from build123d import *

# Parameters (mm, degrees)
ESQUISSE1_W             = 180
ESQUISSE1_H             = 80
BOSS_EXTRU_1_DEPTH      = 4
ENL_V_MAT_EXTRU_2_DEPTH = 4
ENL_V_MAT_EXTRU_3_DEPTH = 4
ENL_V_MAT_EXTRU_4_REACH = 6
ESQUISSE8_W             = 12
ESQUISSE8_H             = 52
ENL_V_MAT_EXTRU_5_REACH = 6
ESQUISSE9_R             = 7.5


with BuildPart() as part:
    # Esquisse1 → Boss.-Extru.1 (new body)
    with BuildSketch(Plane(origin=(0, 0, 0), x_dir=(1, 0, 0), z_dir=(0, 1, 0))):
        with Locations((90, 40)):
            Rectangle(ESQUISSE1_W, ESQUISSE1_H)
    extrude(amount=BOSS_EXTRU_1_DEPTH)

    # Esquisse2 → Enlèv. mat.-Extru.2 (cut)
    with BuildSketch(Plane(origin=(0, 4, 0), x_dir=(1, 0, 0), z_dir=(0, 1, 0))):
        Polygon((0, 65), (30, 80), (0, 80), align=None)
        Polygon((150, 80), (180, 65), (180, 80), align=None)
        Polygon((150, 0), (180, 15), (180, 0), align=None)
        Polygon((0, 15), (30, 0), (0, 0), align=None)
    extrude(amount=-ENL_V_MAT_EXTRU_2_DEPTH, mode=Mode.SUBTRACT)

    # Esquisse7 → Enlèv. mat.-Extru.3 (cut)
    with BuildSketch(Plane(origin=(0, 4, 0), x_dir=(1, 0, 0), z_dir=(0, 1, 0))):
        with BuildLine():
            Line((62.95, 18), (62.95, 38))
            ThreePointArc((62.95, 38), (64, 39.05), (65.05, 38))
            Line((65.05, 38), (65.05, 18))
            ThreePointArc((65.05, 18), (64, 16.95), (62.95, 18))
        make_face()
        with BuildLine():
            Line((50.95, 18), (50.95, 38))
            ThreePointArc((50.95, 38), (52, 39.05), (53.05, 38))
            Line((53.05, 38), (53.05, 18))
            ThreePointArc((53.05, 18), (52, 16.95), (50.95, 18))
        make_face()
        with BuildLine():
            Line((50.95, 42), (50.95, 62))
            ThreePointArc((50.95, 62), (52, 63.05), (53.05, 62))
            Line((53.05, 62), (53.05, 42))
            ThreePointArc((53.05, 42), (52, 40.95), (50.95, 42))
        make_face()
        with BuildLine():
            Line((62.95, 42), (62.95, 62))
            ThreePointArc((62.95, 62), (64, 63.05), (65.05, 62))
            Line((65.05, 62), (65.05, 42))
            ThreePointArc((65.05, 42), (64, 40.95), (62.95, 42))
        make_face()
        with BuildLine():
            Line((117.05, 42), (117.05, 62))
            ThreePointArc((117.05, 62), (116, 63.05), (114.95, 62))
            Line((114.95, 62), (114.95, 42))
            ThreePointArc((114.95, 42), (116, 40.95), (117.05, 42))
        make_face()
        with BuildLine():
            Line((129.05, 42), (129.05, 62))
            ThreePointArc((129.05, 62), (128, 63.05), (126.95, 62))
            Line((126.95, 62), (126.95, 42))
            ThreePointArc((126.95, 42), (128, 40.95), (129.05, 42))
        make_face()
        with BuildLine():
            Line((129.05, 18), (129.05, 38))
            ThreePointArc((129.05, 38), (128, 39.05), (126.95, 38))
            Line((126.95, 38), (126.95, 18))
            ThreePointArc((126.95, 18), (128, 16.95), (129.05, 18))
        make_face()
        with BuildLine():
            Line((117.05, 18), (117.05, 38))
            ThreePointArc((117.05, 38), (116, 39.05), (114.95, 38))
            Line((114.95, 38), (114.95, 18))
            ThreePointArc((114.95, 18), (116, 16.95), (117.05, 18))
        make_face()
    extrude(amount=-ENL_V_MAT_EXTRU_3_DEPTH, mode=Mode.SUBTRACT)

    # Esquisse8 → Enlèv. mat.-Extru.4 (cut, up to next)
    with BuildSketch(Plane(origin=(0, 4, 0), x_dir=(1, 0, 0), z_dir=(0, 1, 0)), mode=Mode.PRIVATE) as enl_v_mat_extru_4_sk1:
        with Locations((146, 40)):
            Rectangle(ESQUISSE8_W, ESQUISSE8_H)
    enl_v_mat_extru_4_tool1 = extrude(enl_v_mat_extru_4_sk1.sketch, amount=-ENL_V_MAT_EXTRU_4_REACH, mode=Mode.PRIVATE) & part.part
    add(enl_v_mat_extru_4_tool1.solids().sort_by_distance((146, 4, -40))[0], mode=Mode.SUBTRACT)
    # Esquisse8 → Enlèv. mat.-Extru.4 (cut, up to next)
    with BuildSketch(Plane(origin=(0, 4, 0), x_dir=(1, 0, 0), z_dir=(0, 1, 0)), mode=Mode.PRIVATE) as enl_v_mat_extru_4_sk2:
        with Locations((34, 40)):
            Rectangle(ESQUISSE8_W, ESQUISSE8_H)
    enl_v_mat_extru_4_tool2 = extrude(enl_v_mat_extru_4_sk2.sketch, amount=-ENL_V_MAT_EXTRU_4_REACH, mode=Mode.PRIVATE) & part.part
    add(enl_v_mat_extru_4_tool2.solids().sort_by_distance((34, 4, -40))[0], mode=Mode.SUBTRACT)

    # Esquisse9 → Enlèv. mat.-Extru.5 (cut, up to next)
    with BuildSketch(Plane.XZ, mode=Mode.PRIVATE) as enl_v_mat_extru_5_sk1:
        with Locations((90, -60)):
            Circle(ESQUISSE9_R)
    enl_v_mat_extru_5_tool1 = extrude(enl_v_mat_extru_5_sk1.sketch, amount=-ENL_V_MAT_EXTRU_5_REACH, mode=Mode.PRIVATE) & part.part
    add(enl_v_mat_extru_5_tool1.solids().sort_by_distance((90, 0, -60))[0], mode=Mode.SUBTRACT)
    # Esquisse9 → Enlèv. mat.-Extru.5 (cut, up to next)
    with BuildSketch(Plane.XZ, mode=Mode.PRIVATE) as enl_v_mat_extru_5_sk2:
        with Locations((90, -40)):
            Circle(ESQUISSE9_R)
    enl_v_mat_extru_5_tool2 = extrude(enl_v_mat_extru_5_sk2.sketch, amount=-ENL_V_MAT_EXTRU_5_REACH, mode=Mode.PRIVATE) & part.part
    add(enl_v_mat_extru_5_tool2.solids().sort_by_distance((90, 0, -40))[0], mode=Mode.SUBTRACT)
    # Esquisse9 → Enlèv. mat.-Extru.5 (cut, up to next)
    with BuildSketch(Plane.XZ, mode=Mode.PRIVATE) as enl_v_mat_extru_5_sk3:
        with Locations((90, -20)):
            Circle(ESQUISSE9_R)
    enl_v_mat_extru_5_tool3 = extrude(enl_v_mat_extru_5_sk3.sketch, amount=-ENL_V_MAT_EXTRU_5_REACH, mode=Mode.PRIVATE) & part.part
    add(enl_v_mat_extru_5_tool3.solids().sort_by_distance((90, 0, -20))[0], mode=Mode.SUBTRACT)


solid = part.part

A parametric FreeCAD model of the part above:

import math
import FreeCAD as App
import Part
import Sketcher
from FreeCAD import Vector
Q = App.Units.Quantity

doc = App.newDocument("Part")
params = doc.addObject("Spreadsheet::Sheet", "Params")
for row, (alias, value) in enumerate([
    ("sketch1_width", "180 mm"),
    ("sketch1_height", "80 mm"),
    ("pad1_length", "4 mm"),
    ("sketch2_width", "30 mm"),
    ("sketch2_height", "15 mm"),
    ("pocket1_length", "4 mm"),
    ("sketch3_height", "20 mm"),
    ("sketch3_radius", "1.05 mm"),
    ("pocket2_length", "4 mm"),
    ("sketch4_width", "12 mm"),
    ("sketch4_height", "52 mm"),
    ("sketch5_width", "12 mm"),
    ("sketch5_height", "52 mm"),
    ("sketch6_diameter", "15 mm"),
    ("sketch7_diameter", "15 mm"),
    ("sketch8_diameter", "15 mm"),
], start=1):
    params.set(f"A{row}", alias)
    params.set(f"B{row}", "=" + value)
    params.setAlias(f"B{row}", alias)

body = doc.addObject("PartDesign::Body", "Body")

sketch1 = body.newObject("Sketcher::SketchObject", "Sketch")
sketch1.AttachmentSupport = (doc.getObject("XZ_Plane"), [""])
sketch1.MapMode = "FlatFace"
sketch1.addGeometry([
    Part.LineSegment(Vector(0, -80, 0), Vector(0, 0, 0)),
    Part.LineSegment(Vector(0, 0, 0), Vector(180, 0, 0)),
    Part.LineSegment(Vector(180, 0, 0), Vector(180, -80, 0)),
    Part.LineSegment(Vector(180, -80, 0), Vector(0, -80, 0)),
], False)
sketch1.addConstraint([
    Sketcher.Constraint("Coincident", 0, 2, 1, 1),
    Sketcher.Constraint("Coincident", 1, 2, 2, 1),
    Sketcher.Constraint("Coincident", 2, 2, 3, 1),
    Sketcher.Constraint("Coincident", 3, 2, 0, 1),
    Sketcher.Constraint("Vertical", 0),
    Sketcher.Constraint("Horizontal", 1),
    Sketcher.Constraint("Vertical", 2),
    Sketcher.Constraint("Horizontal", 3),
    Sketcher.Constraint("Coincident", 0, 2, -1, 1),
    Sketcher.Constraint("DistanceX", 1, 1, 1, 2, Q("180 mm")),
    Sketcher.Constraint("DistanceY", 0, 1, 0, 2, Q("80 mm")),
])
sketch1.setExpression("Constraints[9]", "Params.sketch1_width")
sketch1.setExpression("Constraints[10]", "Params.sketch1_height")
pad1 = body.newObject("PartDesign::Pad", "Pad")
pad1.Profile = sketch1
pad1.setExpression("Length", "Params.pad1_length")
pad1.Reversed = True

sketch2 = body.newObject("Sketcher::SketchObject", "Sketch001")
sketch2.AttachmentSupport = (doc.getObject("XZ_Plane"), [""])
sketch2.MapMode = "FlatFace"
sketch2.AttachmentOffset = App.Placement(Vector(0, 0, -4), App.Rotation())
sketch2.addGeometry([
    Part.LineSegment(Vector(0, -65, 0), Vector(30, -80, 0)),
    Part.LineSegment(Vector(30, -80, 0), Vector(0, -80, 0)),
    Part.LineSegment(Vector(0, -80, 0), Vector(0, -65, 0)),
    Part.LineSegment(Vector(150, -80, 0), Vector(180, -65, 0)),
    Part.LineSegment(Vector(180, -65, 0), Vector(180, -80, 0)),
    Part.LineSegment(Vector(180, -80, 0), Vector(150, -80, 0)),
    Part.LineSegment(Vector(180, -15, 0), Vector(150, 0, 0)),
    Part.LineSegment(Vector(150, 0, 0), Vector(180, 0, 0)),
    Part.LineSegment(Vector(180, 0, 0), Vector(180, -15, 0)),
    Part.LineSegment(Vector(30, 0, 0), Vector(0, -15, 0)),
    Part.LineSegment(Vector(0, -15, 0), Vector(0, 0, 0)),
    Part.LineSegment(Vector(0, 0, 0), Vector(30, 0, 0)),
], False)
sketch2.addConstraint([
    Sketcher.Constraint("Coincident", 0, 2, 1, 1),
    Sketcher.Constraint("Coincident", 1, 2, 2, 1),
    Sketcher.Constraint("Coincident", 2, 2, 0, 1),
    Sketcher.Constraint("Coincident", 3, 2, 4, 1),
    Sketcher.Constraint("Coincident", 4, 2, 5, 1),
    Sketcher.Constraint("Coincident", 5, 2, 3, 1),
    Sketcher.Constraint("Coincident", 6, 2, 7, 1),
    Sketcher.Constraint("Coincident", 7, 2, 8, 1),
    Sketcher.Constraint("Coincident", 8, 2, 6, 1),
    Sketcher.Constraint("Coincident", 9, 2, 10, 1),
    Sketcher.Constraint("Coincident", 10, 2, 11, 1),
    Sketcher.Constraint("Coincident", 11, 2, 9, 1),
    Sketcher.Constraint("Horizontal", 1),
    Sketcher.Constraint("Vertical", 2),
    Sketcher.Constraint("Vertical", 4),
    Sketcher.Constraint("Horizontal", 5),
    Sketcher.Constraint("Horizontal", 7),
    Sketcher.Constraint("Vertical", 8),
    Sketcher.Constraint("Vertical", 10),
    Sketcher.Constraint("Horizontal", 11),
    Sketcher.Constraint("Coincident", 10, 2, -1, 1),
    Sketcher.Constraint("PointOnObject", 1, 2, -2),
    Sketcher.Constraint("PointOnObject", 6, 2, -1),
    Sketcher.Constraint("Parallel", 0, 6),
    Sketcher.Constraint("Parallel", 3, 9),
    Sketcher.Constraint("Horizontal", 2, 2, 3, 2),
    Sketcher.Constraint("Horizontal", 1, 2, 4, 2),
    Sketcher.Constraint("Horizontal", 8, 2, 9, 2),
    Sketcher.Constraint("Vertical", 5, 2, 6, 2),
    Sketcher.Constraint("Vertical", 4, 2, 7, 2),
    Sketcher.Constraint("Vertical", 0, 2, 11, 2),
    Sketcher.Constraint("DistanceX", 1, 2, 1, 1, Q("30 mm")),
    Sketcher.Constraint("DistanceY", 2, 1, 2, 2, Q("15 mm")),
    Sketcher.Constraint("DistanceY", 0, 2, -1, 1, Q("80 mm")),
    Sketcher.Constraint("DistanceX", -1, 1, 3, 2, Q("180 mm")),
])
sketch2.setExpression("Constraints[31]", "Params.sketch2_width")
sketch2.setExpression("Constraints[32]", "Params.sketch2_height")
pocket1 = body.newObject("PartDesign::Pocket", "Pocket")
pocket1.Profile = sketch2
pocket1.setExpression("Length", "Params.pocket1_length")
pocket1.Reversed = True

sketch3 = body.newObject("Sketcher::SketchObject", "Sketch002")
sketch3.AttachmentSupport = (doc.getObject("XZ_Plane"), [""])
sketch3.MapMode = "FlatFace"
sketch3.AttachmentOffset = App.Placement(Vector(0, 0, -4), App.Rotation())
sketch3.addGeometry([
    Part.LineSegment(Vector(63, -38, 0), Vector(63, -18, 0)),
    Part.ArcOfCircle(Part.Circle(Vector(64, -18, 0), Vector(0, 0, 1), 1.1), math.radians(0), math.radians(180)),
    Part.LineSegment(Vector(65, -18, 0), Vector(65, -38, 0)),
    Part.ArcOfCircle(Part.Circle(Vector(64, -38, 0), Vector(0, 0, 1), 1.1), math.radians(180), math.radians(360)),
    Part.LineSegment(Vector(51, -38, 0), Vector(51, -18, 0)),
    Part.ArcOfCircle(Part.Circle(Vector(52, -18, 0), Vector(0, 0, 1), 1.1), math.radians(0), math.radians(180)),
    Part.LineSegment(Vector(53, -18, 0), Vector(53, -38, 0)),
    Part.ArcOfCircle(Part.Circle(Vector(52, -38, 0), Vector(0, 0, 1), 1.1), math.radians(180), math.radians(360)),
    Part.LineSegment(Vector(51, -62, 0), Vector(51, -42, 0)),
    Part.ArcOfCircle(Part.Circle(Vector(52, -42, 0), Vector(0, 0, 1), 1.1), math.radians(0), math.radians(180)),
    Part.LineSegment(Vector(53, -42, 0), Vector(53, -62, 0)),
    Part.ArcOfCircle(Part.Circle(Vector(52, -62, 0), Vector(0, 0, 1), 1.1), math.radians(180), math.radians(360)),
    Part.LineSegment(Vector(63, -62, 0), Vector(63, -42, 0)),
    Part.ArcOfCircle(Part.Circle(Vector(64, -42, 0), Vector(0, 0, 1), 1.1), math.radians(0), math.radians(180)),
    Part.LineSegment(Vector(65, -42, 0), Vector(65, -62, 0)),
    Part.ArcOfCircle(Part.Circle(Vector(64, -62, 0), Vector(0, 0, 1), 1.1), math.radians(180), math.radians(360)),
    Part.LineSegment(Vector(117, -42, 0), Vector(117, -62, 0)),
    Part.ArcOfCircle(Part.Circle(Vector(116, -62, 0), Vector(0, 0, 1), 1.1), math.radians(180), math.radians(360)),
    Part.LineSegment(Vector(115, -62, 0), Vector(115, -42, 0)),
    Part.ArcOfCircle(Part.Circle(Vector(116, -42, 0), Vector(0, 0, 1), 1.1), math.radians(0), math.radians(180)),
    Part.LineSegment(Vector(129.1, -42, 0), Vector(129.1, -62, 0)),
    Part.ArcOfCircle(Part.Circle(Vector(128, -62, 0), Vector(0, 0, 1), 1.1), math.radians(180), math.radians(360)),
    Part.LineSegment(Vector(127, -62, 0), Vector(127, -42, 0)),
    Part.ArcOfCircle(Part.Circle(Vector(128, -42, 0), Vector(0, 0, 1), 1.1), math.radians(0), math.radians(180)),
    Part.LineSegment(Vector(129.1, -18, 0), Vector(129.1, -38, 0)),
    Part.ArcOfCircle(Part.Circle(Vector(128, -38, 0), Vector(0, 0, 1), 1.1), math.radians(180), math.radians(360)),
    Part.LineSegment(Vector(127, -38, 0), Vector(127, -18, 0)),
    Part.ArcOfCircle(Part.Circle(Vector(128, -18, 0), Vector(0, 0, 1), 1.1), math.radians(0), math.radians(180)),
    Part.LineSegment(Vector(117, -18, 0), Vector(117, -38, 0)),
    Part.ArcOfCircle(Part.Circle(Vector(116, -38, 0), Vector(0, 0, 1), 1.1), math.radians(180), math.radians(360)),
    Part.LineSegment(Vector(115, -38, 0), Vector(115, -18, 0)),
    Part.ArcOfCircle(Part.Circle(Vector(116, -18, 0), Vector(0, 0, 1), 1.1), math.radians(0), math.radians(180)),
], False)
sketch3.addConstraint([
    Sketcher.Constraint("Tangent", 0, 2, 1, 2),
    Sketcher.Constraint("Tangent", 1, 1, 2, 1),
    Sketcher.Constraint("Tangent", 2, 2, 3, 2),
    Sketcher.Constraint("Tangent", 3, 1, 0, 1),
    Sketcher.Constraint("Tangent", 4, 2, 5, 2),
    Sketcher.Constraint("Tangent", 5, 1, 6, 1),
    Sketcher.Constraint("Tangent", 6, 2, 7, 2),
    Sketcher.Constraint("Tangent", 7, 1, 4, 1),
    Sketcher.Constraint("Tangent", 8, 2, 9, 2),
    Sketcher.Constraint("Tangent", 9, 1, 10, 1),
    Sketcher.Constraint("Tangent", 10, 2, 11, 2),
    Sketcher.Constraint("Tangent", 11, 1, 8, 1),
    Sketcher.Constraint("Tangent", 12, 2, 13, 2),
    Sketcher.Constraint("Tangent", 13, 1, 14, 1),
    Sketcher.Constraint("Tangent", 14, 2, 15, 2),
    Sketcher.Constraint("Tangent", 15, 1, 12, 1),
    Sketcher.Constraint("Tangent", 16, 2, 17, 2),
    Sketcher.Constraint("Tangent", 17, 1, 18, 1),
    Sketcher.Constraint("Tangent", 18, 2, 19, 2),
    Sketcher.Constraint("Tangent", 19, 1, 16, 1),
    Sketcher.Constraint("Tangent", 20, 2, 21, 2),
    Sketcher.Constraint("Tangent", 21, 1, 22, 1),
    Sketcher.Constraint("Tangent", 22, 2, 23, 2),
    Sketcher.Constraint("Tangent", 23, 1, 20, 1),
    Sketcher.Constraint("Tangent", 24, 2, 25, 2),
    Sketcher.Constraint("Tangent", 25, 1, 26, 1),
    Sketcher.Constraint("Tangent", 26, 2, 27, 2),
    Sketcher.Constraint("Tangent", 27, 1, 24, 1),
    Sketcher.Constraint("Tangent", 28, 2, 29, 2),
    Sketcher.Constraint("Tangent", 29, 1, 30, 1),
    Sketcher.Constraint("Tangent", 30, 2, 31, 2),
    Sketcher.Constraint("Tangent", 31, 1, 28, 1),
    Sketcher.Constraint("Vertical", 0),
    Sketcher.Constraint("Vertical", 2),
    Sketcher.Constraint("Vertical", 4),
    Sketcher.Constraint("Vertical", 6),
    Sketcher.Constraint("Vertical", 8),
    Sketcher.Constraint("Vertical", 10),
    Sketcher.Constraint("Vertical", 12),
    Sketcher.Constraint("Vertical", 14),
    Sketcher.Constraint("Vertical", 16),
    Sketcher.Constraint("Vertical", 18),
    Sketcher.Constraint("Vertical", 20),
    Sketcher.Constraint("Vertical", 22),
    Sketcher.Constraint("Vertical", 24),
    Sketcher.Constraint("Vertical", 26),
    Sketcher.Constraint("Vertical", 28),
    Sketcher.Constraint("Vertical", 30),
    Sketcher.Constraint("Equal", 3, 5),
    Sketcher.Constraint("Equal", 7, 9),
    Sketcher.Constraint("Equal", 11, 13),
    Sketcher.Constraint("Equal", 15, 17),
    Sketcher.Constraint("Equal", 19, 21),
    Sketcher.Constraint("Equal", 23, 25),
    Sketcher.Constraint("Equal", 27, 29),
    Sketcher.Constraint("Horizontal", 1, 3, 5, 3),
    Sketcher.Constraint("Horizontal", 3, 3, 7, 3),
    Sketcher.Constraint("Horizontal", 9, 3, 13, 3),
    Sketcher.Constraint("Horizontal", 11, 3, 15, 3),
    Sketcher.Constraint("Horizontal", 15, 3, 17, 3),
    Sketcher.Constraint("Horizontal", 13, 3, 19, 3),
    Sketcher.Constraint("Horizontal", 17, 3, 21, 3),
    Sketcher.Constraint("Horizontal", 19, 3, 23, 3),
    Sketcher.Constraint("Horizontal", 7, 3, 25, 3),
    Sketcher.Constraint("Horizontal", 5, 3, 27, 3),
    Sketcher.Constraint("Horizontal", 25, 3, 29, 3),
    Sketcher.Constraint("Horizontal", 27, 3, 31, 3),
    Sketcher.Constraint("Vertical", 7, 3, 9, 3),
    Sketcher.Constraint("Vertical", 3, 3, 13, 3),
    Sketcher.Constraint("Vertical", 23, 3, 25, 3),
    Sketcher.Constraint("Vertical", 19, 3, 29, 3),
    Sketcher.Constraint("Equal", 6, 8),
    Sketcher.Constraint("DistanceY", 0, 1, 0, 2, Q("20 mm")),
    Sketcher.Constraint("Radius", 1, Q("1.05 mm")),
    Sketcher.Constraint("DistanceX", -1, 1, 1, 3, Q("64 mm")),
    Sketcher.Constraint("DistanceY", 1, 3, -1, 1, Q("18 mm")),
    Sketcher.Constraint("DistanceX", -1, 1, 5, 3, Q("52 mm")),
    Sketcher.Constraint("DistanceY", 9, 3, -1, 1, Q("42 mm")),
    Sketcher.Constraint("DistanceX", -1, 1, 17, 3, Q("116 mm")),
    Sketcher.Constraint("DistanceX", -1, 1, 21, 3, Q("128 mm")),
])
sketch3.setExpression("Constraints[72]", "Params.sketch3_height")
sketch3.setExpression("Constraints[73]", "Params.sketch3_radius")
pocket2 = body.newObject("PartDesign::Pocket", "Pocket001")
pocket2.Profile = sketch3
pocket2.setExpression("Length", "Params.pocket2_length")
pocket2.Reversed = True

sketch4 = body.newObject("Sketcher::SketchObject", "Sketch003")
sketch4.AttachmentSupport = (doc.getObject("XZ_Plane"), [""])
sketch4.MapMode = "FlatFace"
sketch4.AttachmentOffset = App.Placement(Vector(0, 0, -4), App.Rotation())
sketch4.addGeometry([
    Part.LineSegment(Vector(140, -66, 0), Vector(140, -14, 0)),
    Part.LineSegment(Vector(140, -14, 0), Vector(152, -14, 0)),
    Part.LineSegment(Vector(152, -14, 0), Vector(152, -66, 0)),
    Part.LineSegment(Vector(152, -66, 0), Vector(140, -66, 0)),
], False)
sketch4.addConstraint([
    Sketcher.Constraint("Coincident", 0, 2, 1, 1),
    Sketcher.Constraint("Coincident", 1, 2, 2, 1),
    Sketcher.Constraint("Coincident", 2, 2, 3, 1),
    Sketcher.Constraint("Coincident", 3, 2, 0, 1),
    Sketcher.Constraint("Vertical", 0),
    Sketcher.Constraint("Horizontal", 1),
    Sketcher.Constraint("Vertical", 2),
    Sketcher.Constraint("Horizontal", 3),
    Sketcher.Constraint("DistanceX", 1, 1, 1, 2, Q("12 mm")),
    Sketcher.Constraint("DistanceY", 0, 1, 0, 2, Q("52 mm")),
    Sketcher.Constraint("DistanceX", -1, 1, 0, 2, Q("140 mm")),
    Sketcher.Constraint("DistanceY", 0, 2, -1, 1, Q("14 mm")),
])
sketch4.setExpression("Constraints[8]", "Params.sketch4_width")
sketch4.setExpression("Constraints[9]", "Params.sketch4_height")
pocket3 = body.newObject("PartDesign::Pocket", "Pocket002")
pocket3.Profile = sketch4
pocket3.Type = "UpToFirst"
pocket3.Reversed = True

sketch5 = body.newObject("Sketcher::SketchObject", "Sketch004")
sketch5.AttachmentSupport = (doc.getObject("XZ_Plane"), [""])
sketch5.MapMode = "FlatFace"
sketch5.AttachmentOffset = App.Placement(Vector(0, 0, -4), App.Rotation())
sketch5.addGeometry([
    Part.LineSegment(Vector(28, -66, 0), Vector(28, -14, 0)),
    Part.LineSegment(Vector(28, -14, 0), Vector(40, -14, 0)),
    Part.LineSegment(Vector(40, -14, 0), Vector(40, -66, 0)),
    Part.LineSegment(Vector(40, -66, 0), Vector(28, -66, 0)),
], False)
sketch5.addConstraint([
    Sketcher.Constraint("Coincident", 0, 2, 1, 1),
    Sketcher.Constraint("Coincident", 1, 2, 2, 1),
    Sketcher.Constraint("Coincident", 2, 2, 3, 1),
    Sketcher.Constraint("Coincident", 3, 2, 0, 1),
    Sketcher.Constraint("Vertical", 0),
    Sketcher.Constraint("Horizontal", 1),
    Sketcher.Constraint("Vertical", 2),
    Sketcher.Constraint("Horizontal", 3),
    Sketcher.Constraint("DistanceX", 1, 1, 1, 2, Q("12 mm")),
    Sketcher.Constraint("DistanceY", 0, 1, 0, 2, Q("52 mm")),
    Sketcher.Constraint("DistanceX", -1, 1, 0, 2, Q("28 mm")),
    Sketcher.Constraint("DistanceY", 0, 2, -1, 1, Q("14 mm")),
])
sketch5.setExpression("Constraints[8]", "Params.sketch5_width")
sketch5.setExpression("Constraints[9]", "Params.sketch5_height")
pocket4 = body.newObject("PartDesign::Pocket", "Pocket003")
pocket4.Profile = sketch5
pocket4.Type = "UpToFirst"
pocket4.Reversed = True

sketch6 = body.newObject("Sketcher::SketchObject", "Sketch005")
sketch6.AttachmentSupport = (doc.getObject("XZ_Plane"), [""])
sketch6.MapMode = "FlatFace"
sketch6.addGeometry(Part.Circle(Vector(90, -60, 0), Vector(0, 0, 1), 8), False)
sketch6.addConstraint([
    Sketcher.Constraint("Diameter", 0, Q("15 mm")),
    Sketcher.Constraint("DistanceX", -1, 1, 0, 3, Q("90 mm")),
    Sketcher.Constraint("DistanceY", 0, 3, -1, 1, Q("60 mm")),
])
sketch6.setExpression("Constraints[0]", "Params.sketch6_diameter")
pocket5 = body.newObject("PartDesign::Pocket", "Pocket004")
pocket5.Profile = sketch6
pocket5.Type = "UpToFirst"

sketch7 = body.newObject("Sketcher::SketchObject", "Sketch006")
sketch7.AttachmentSupport = (doc.getObject("XZ_Plane"), [""])
sketch7.MapMode = "FlatFace"
sketch7.addGeometry(Part.Circle(Vector(90, -40, 0), Vector(0, 0, 1), 8), False)
sketch7.addConstraint([
    Sketcher.Constraint("Diameter", 0, Q("15 mm")),
    Sketcher.Constraint("DistanceX", -1, 1, 0, 3, Q("90 mm")),
    Sketcher.Constraint("DistanceY", 0, 3, -1, 1, Q("40 mm")),
])
sketch7.setExpression("Constraints[0]", "Params.sketch7_diameter")
pocket6 = body.newObject("PartDesign::Pocket", "Pocket005")
pocket6.Profile = sketch7
pocket6.Type = "UpToFirst"

sketch8 = body.newObject("Sketcher::SketchObject", "Sketch007")
sketch8.AttachmentSupport = (doc.getObject("XZ_Plane"), [""])
sketch8.MapMode = "FlatFace"
sketch8.addGeometry(Part.Circle(Vector(90, -20, 0), Vector(0, 0, 1), 8), False)
sketch8.addConstraint([
    Sketcher.Constraint("Diameter", 0, Q("15 mm")),
    Sketcher.Constraint("DistanceX", -1, 1, 0, 3, Q("90 mm")),
    Sketcher.Constraint("DistanceY", 0, 3, -1, 1, Q("20 mm")),
])
sketch8.setExpression("Constraints[0]", "Params.sketch8_diameter")
pocket7 = body.newObject("PartDesign::Pocket", "Pocket006")
pocket7.Profile = sketch8
pocket7.Type = "UpToFirst"

doc.recompute()
